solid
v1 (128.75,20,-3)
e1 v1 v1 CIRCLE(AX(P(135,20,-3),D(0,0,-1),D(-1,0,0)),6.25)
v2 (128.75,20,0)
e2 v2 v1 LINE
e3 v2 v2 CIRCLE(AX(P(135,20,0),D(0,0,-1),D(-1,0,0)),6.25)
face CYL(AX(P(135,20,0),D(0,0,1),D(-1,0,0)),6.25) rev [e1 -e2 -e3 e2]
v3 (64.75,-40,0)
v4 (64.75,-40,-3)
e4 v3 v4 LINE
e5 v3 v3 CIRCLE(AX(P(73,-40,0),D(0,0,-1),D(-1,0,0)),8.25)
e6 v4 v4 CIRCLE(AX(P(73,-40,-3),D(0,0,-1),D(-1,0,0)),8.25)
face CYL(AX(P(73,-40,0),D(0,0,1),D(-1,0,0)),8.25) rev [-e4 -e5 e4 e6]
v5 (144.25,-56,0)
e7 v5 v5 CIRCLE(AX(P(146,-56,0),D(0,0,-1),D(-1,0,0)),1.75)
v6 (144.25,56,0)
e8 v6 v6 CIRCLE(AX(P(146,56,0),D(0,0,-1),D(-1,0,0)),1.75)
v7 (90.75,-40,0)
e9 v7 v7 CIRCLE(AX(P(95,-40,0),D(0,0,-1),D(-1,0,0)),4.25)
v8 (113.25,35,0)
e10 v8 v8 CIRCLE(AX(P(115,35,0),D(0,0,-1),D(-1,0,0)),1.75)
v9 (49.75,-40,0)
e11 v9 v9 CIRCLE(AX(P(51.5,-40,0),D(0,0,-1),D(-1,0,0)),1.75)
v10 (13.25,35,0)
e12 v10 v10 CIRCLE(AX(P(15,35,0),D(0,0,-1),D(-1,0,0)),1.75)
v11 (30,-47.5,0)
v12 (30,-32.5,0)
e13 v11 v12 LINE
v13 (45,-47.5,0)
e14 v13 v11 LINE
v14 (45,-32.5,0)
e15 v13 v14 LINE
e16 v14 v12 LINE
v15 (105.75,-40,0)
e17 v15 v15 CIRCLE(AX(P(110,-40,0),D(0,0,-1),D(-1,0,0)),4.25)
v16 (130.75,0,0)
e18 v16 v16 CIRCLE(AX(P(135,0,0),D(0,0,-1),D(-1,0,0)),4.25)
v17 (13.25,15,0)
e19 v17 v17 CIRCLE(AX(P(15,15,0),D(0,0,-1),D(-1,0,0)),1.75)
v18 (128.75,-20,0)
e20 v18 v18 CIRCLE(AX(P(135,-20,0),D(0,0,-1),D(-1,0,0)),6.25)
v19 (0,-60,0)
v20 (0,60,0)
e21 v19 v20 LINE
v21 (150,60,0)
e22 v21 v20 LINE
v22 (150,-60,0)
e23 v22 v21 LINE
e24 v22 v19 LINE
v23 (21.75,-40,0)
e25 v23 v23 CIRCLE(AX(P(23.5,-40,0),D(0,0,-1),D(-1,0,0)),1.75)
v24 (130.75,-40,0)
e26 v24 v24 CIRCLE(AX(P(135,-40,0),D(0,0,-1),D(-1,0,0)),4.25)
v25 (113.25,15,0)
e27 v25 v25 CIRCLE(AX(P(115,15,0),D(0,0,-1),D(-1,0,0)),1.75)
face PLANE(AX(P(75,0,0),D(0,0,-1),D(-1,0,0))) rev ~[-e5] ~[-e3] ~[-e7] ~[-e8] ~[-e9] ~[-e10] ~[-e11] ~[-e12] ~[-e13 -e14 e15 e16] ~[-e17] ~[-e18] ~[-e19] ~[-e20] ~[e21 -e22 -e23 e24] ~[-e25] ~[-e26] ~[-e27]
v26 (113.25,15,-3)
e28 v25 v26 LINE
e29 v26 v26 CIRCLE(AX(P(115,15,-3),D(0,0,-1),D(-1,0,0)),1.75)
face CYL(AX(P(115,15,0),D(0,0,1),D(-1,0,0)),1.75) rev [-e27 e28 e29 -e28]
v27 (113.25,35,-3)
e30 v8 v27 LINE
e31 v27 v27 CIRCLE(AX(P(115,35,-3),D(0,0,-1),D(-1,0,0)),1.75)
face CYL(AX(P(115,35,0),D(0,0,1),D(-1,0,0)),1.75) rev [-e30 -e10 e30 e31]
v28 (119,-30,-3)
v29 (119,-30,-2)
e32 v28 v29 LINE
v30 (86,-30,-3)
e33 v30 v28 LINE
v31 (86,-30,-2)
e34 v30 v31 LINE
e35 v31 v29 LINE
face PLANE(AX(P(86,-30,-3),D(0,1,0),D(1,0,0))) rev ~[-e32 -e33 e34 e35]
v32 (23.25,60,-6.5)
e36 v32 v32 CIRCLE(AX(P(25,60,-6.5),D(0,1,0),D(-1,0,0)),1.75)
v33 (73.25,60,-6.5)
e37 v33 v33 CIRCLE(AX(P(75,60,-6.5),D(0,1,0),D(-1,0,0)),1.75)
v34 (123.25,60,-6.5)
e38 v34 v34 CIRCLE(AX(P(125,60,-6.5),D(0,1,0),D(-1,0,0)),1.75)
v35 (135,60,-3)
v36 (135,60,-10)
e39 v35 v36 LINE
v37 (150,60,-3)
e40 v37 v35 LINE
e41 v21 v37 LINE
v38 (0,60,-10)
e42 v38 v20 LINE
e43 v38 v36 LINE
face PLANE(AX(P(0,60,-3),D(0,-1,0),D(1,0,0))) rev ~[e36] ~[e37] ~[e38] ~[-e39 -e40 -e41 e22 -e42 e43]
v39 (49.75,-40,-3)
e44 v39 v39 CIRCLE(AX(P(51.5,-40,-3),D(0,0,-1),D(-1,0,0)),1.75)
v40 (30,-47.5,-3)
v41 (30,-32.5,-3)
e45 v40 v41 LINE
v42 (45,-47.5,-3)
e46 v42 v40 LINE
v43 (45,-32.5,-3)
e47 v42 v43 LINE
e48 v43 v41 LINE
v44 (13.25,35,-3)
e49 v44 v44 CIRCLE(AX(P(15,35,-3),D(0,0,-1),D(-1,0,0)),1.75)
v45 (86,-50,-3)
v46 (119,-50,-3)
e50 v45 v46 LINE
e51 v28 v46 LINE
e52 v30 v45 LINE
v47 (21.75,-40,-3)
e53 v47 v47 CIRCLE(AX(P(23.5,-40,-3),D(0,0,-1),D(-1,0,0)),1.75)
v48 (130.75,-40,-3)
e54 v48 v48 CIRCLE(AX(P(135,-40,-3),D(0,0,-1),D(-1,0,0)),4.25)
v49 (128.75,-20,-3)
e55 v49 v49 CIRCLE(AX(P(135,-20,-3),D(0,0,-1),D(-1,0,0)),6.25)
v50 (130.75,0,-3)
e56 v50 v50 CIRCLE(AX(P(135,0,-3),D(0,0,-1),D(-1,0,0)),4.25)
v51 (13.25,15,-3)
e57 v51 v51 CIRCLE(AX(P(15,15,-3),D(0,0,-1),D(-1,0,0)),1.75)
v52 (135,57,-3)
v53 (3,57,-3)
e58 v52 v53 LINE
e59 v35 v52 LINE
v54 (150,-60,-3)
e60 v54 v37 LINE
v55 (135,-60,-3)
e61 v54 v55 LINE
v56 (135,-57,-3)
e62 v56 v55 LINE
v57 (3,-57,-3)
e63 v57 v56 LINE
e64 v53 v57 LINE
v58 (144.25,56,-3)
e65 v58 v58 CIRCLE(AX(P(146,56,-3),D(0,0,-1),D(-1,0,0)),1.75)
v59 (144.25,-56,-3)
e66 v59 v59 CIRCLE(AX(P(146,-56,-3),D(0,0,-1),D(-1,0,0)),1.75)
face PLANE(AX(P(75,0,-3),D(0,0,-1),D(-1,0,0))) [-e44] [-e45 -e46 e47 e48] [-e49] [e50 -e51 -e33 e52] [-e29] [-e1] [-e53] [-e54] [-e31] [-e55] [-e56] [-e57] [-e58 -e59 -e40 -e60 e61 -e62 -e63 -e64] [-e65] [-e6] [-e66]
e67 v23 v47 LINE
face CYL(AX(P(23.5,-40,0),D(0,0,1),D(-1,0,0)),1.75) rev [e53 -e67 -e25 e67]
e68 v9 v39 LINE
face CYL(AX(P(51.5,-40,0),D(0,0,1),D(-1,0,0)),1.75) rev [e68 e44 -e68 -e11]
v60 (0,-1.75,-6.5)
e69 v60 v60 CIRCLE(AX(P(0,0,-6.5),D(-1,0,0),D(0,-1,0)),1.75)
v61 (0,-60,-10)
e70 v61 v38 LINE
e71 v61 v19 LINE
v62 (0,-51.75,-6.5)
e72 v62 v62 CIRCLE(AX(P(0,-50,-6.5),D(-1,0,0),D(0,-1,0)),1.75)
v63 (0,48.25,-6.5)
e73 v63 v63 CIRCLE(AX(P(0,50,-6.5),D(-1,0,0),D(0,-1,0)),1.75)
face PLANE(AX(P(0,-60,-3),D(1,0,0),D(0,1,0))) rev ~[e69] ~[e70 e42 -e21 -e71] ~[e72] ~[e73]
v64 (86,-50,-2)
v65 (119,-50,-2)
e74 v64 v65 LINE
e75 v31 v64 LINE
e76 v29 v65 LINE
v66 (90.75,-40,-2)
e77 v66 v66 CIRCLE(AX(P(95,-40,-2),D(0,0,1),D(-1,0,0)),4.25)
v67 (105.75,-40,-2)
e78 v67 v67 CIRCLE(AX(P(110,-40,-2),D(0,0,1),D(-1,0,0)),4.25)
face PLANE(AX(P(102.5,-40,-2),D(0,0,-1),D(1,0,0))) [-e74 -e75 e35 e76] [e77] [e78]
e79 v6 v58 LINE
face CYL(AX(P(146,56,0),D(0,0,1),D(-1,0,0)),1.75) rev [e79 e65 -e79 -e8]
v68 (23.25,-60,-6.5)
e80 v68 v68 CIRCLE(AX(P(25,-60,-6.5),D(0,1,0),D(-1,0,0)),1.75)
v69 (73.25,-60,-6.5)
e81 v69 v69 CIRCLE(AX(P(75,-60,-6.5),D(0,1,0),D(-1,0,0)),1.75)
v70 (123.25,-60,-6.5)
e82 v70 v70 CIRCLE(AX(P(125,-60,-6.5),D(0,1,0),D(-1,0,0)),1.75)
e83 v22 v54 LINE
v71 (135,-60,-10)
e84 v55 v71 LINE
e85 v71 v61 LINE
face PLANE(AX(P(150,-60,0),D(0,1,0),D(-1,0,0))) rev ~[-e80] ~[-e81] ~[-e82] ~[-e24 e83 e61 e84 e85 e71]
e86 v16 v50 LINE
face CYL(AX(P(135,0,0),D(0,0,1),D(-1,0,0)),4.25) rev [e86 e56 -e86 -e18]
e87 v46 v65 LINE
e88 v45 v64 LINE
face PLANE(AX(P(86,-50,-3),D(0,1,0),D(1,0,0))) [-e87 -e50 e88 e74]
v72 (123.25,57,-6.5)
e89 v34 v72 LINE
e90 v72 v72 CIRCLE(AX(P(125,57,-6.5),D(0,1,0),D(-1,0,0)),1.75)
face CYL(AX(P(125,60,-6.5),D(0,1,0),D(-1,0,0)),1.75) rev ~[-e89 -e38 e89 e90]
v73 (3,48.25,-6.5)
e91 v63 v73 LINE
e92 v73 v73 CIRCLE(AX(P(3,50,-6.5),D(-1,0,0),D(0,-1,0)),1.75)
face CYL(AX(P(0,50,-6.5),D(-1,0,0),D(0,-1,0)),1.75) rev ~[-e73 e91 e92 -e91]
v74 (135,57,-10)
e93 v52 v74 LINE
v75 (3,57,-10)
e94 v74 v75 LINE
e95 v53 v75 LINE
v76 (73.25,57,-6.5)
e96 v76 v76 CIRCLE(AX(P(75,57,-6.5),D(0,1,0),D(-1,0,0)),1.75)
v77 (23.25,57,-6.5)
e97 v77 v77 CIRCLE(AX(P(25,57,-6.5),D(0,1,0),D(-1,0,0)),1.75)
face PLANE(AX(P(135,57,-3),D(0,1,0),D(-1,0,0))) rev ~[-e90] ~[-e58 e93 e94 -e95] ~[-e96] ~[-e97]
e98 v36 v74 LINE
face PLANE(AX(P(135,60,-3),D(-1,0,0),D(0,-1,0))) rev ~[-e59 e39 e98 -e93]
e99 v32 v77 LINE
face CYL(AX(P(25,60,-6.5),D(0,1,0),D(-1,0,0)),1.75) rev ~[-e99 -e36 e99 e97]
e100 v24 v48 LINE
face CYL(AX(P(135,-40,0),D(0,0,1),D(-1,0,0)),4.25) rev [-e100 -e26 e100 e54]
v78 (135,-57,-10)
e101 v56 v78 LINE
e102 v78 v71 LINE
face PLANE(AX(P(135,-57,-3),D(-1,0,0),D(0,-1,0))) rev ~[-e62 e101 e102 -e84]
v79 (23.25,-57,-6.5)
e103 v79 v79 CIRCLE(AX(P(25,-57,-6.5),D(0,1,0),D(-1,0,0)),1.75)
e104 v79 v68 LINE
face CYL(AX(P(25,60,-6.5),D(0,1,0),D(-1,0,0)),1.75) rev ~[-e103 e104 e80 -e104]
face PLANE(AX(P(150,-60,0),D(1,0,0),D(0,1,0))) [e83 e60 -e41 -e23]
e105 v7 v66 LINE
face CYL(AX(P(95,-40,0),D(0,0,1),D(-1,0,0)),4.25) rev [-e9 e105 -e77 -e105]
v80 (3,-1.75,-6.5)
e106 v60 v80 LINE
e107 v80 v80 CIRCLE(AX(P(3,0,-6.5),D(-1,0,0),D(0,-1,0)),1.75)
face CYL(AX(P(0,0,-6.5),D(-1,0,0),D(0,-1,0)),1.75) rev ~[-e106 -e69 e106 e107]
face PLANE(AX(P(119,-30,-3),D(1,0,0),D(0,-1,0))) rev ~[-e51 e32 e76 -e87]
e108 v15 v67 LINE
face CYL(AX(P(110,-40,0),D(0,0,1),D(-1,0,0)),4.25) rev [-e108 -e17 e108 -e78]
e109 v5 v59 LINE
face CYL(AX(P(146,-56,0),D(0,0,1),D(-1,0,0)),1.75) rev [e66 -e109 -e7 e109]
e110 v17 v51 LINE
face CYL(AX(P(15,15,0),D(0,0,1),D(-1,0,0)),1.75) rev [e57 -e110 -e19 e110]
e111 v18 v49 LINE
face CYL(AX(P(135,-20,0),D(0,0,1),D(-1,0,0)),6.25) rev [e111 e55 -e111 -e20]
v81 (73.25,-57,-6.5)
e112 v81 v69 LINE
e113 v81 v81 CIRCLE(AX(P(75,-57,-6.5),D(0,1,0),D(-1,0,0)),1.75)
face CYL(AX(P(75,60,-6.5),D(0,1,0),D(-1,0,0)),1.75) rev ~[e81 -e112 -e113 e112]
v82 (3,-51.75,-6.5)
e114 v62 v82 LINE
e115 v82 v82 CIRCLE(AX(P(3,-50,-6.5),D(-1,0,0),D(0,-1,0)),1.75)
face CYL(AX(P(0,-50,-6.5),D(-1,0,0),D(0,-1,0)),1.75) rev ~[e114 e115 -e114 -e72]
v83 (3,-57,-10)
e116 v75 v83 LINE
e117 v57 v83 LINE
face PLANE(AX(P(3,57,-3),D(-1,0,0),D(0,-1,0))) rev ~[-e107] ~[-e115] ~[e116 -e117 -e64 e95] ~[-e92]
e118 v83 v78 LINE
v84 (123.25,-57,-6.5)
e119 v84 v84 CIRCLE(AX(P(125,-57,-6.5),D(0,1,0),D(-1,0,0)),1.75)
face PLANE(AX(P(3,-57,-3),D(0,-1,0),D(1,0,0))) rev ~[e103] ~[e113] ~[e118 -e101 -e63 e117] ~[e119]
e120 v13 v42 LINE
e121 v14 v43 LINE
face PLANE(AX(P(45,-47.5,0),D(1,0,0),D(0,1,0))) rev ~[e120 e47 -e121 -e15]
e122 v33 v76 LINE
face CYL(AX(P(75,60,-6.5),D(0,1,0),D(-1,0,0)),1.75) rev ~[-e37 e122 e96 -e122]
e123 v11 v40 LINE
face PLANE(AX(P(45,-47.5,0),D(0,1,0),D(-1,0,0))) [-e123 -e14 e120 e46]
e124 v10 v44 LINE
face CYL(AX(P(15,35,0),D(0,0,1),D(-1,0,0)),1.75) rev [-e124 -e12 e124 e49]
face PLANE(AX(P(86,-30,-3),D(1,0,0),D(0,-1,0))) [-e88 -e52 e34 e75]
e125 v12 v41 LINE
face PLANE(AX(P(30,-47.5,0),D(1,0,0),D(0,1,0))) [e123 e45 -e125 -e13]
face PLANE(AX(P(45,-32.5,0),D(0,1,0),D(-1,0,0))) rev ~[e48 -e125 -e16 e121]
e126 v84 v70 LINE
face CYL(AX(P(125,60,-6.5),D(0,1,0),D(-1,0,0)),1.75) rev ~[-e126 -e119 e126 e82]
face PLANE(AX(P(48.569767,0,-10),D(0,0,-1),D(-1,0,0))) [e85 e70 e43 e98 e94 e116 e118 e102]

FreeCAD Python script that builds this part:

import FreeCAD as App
import Part
import Sketcher

V = App.Vector
Q = App.Units.Quantity


def add_polygon(sketch, points):
    """Adds a closed chain of lines whose ends are joined by coincident constraints."""
    first, n = sketch.GeometryCount, len(points)
    for a, b in zip(points, points[1:] + points[:1]):
        sketch.addGeometry(Part.LineSegment(App.Vector(*a, 0), App.Vector(*b, 0)), False)
    for i in range(n):
        sketch.addConstraint(Sketcher.Constraint("Coincident", first + i, 2, first + (i + 1) % n, 1))

doc = App.newDocument("Part")
body = doc.addObject("PartDesign::Body", "Body")

# Sketch on XY plane
sketch1 = body.newObject("Sketcher::SketchObject", "Sketch")
sketch1.AttachmentSupport = (doc.getObject("XY_Plane"), [""])
sketch1.MapMode = "FlatFace"
add_polygon(sketch1, [(150, 60), (150, -60), (0, -60), (0, 60)])  # lines 0-3
sketch1.addGeometry(Part.Circle(V(146, -56, 0), V(0, 0, 1), 1.75), False)  # 4
sketch1.addGeometry(Part.Circle(V(135, -40, 0), V(0, 0, 1), 4.25), False)  # 5
sketch1.addGeometry(Part.Circle(V(110, -40, 0), V(0, 0, 1), 4.25), False)  # 6
sketch1.addGeometry(Part.Circle(V(95, -40, 0), V(0, 0, 1), 4.25), False)  # 7
sketch1.addGeometry(Part.Circle(V(135, -20, 0), V(0, 0, 1), 6.25), False)  # 8
sketch1.addGeometry(Part.Circle(V(73, -40, 0), V(0, 0, 1), 8.25), False)  # 9
sketch1.addGeometry(Part.Circle(V(51.5, -40, 0), V(0, 0, 1), 1.75), False)  # 10
add_polygon(sketch1, [(30, -47.5), (45, -47.5), (45, -32.5), (30, -32.5)])  # lines 11-14
sketch1.addGeometry(Part.Circle(V(23.5, -40, 0), V(0, 0, 1), 1.75), False)  # 15
sketch1.addGeometry(Part.Circle(V(135, 0, 0), V(0, 0, 1), 4.25), False)  # 16
sketch1.addGeometry(Part.Circle(V(135, 20, 0), V(0, 0, 1), 6.25), False)  # 17
sketch1.addGeometry(Part.Circle(V(115, 15, 0), V(0, 0, 1), 1.75), False)  # 18
sketch1.addGeometry(Part.Circle(V(115, 35, 0), V(0, 0, 1), 1.75), False)  # 19
sketch1.addGeometry(Part.Circle(V(146, 56, 0), V(0, 0, 1), 1.75), False)  # 20
sketch1.addGeometry(Part.Circle(V(15, 15, 0), V(0, 0, 1), 1.75), False)  # 21
sketch1.addGeometry(Part.Circle(V(15, 35, 0), V(0, 0, 1), 1.75), False)  # 22
sketch1.addConstraint([
    Sketcher.Constraint("Vertical", 0),
    Sketcher.Constraint("Horizontal", 1),
    Sketcher.Constraint("Vertical", 2),
    Sketcher.Constraint("Horizontal", 3),
    Sketcher.Constraint("Horizontal", 11),
    Sketcher.Constraint("Vertical", 12),
    Sketcher.Constraint("Horizontal", 13),
    Sketcher.Constraint("Vertical", 14),
    Sketcher.Constraint("Equal", 5, 6),
    Sketcher.Constraint("Equal", 6, 7),
    Sketcher.Constraint("Equal", 4, 10),
    Sketcher.Constraint("Equal", 10, 15),
    Sketcher.Constraint("Equal", 7, 16),
    Sketcher.Constraint("Equal", 8, 17),
    Sketcher.Constraint("Equal", 15, 18),
    Sketcher.Constraint("Equal", 18, 19),
    Sketcher.Constraint("Equal", 19, 20),
    Sketcher.Constraint("Equal", 20, 21),
    Sketcher.Constraint("Equal", 21, 22),
    Sketcher.Constraint("Symmetric", 1, 2, 2, 2, -1, 1),
    Sketcher.Constraint("Symmetric", 8, 3, 17, 3, -1),
    Sketcher.Constraint("Symmetric", 4, 3, 20, 3, -1),
    Sketcher.Constraint("PointOnObject", 16, 3, -1),
    Sketcher.Constraint("Horizontal", 5, 3, 6, 3),
    Sketcher.Constraint("Horizontal", 6, 3, 7, 3),
    Sketcher.Constraint("Horizontal", 7, 3, 9, 3),
    Sketcher.Constraint("Horizontal", 9, 3, 10, 3),
    Sketcher.Constraint("Horizontal", 10, 3, 15, 3),
    Sketcher.Constraint("Horizontal", 18, 3, 21, 3),
    Sketcher.Constraint("Horizontal", 19, 3, 22, 3),
    Sketcher.Constraint("Vertical", 5, 3, 8, 3),
    Sketcher.Constraint("Vertical", 8, 3, 16, 3),
    Sketcher.Constraint("Vertical", 18, 3, 19, 3),
    Sketcher.Constraint("Vertical", 21, 3, 22, 3),
    Sketcher.Constraint("Equal", 13, 12),
    Sketcher.Constraint("Diameter", 4, Q("3.5 mm")),
    Sketcher.Constraint("Diameter", 5, Q("8.5 mm")),
    Sketcher.Constraint("Diameter", 8, Q("12.5 mm")),
    Sketcher.Constraint("Diameter", 9, Q("16.5 mm")),
    Sketcher.Constraint("DistanceX", 1, 2, 1, 1, Q("150 mm")),
    Sketcher.Constraint("DistanceX", 11, 1, 11, 2, Q("15 mm")),
    Sketcher.Constraint("DistanceY", 0, 2, 0, 1, Q("120 mm")),
    Sketcher.Constraint("DistanceX", -1, 1, 4, 3, Q("146 mm")),
    Sketcher.Constraint("DistanceY", 4, 3, -1, 1, Q("56 mm")),
    Sketcher.Constraint("DistanceX", -1, 1, 5, 3, Q("135 mm")),
    Sketcher.Constraint("DistanceY", 5, 3, -1, 1, Q("40 mm")),
    Sketcher.Constraint("DistanceX", -1, 1, 6, 3, Q("110 mm")),
    Sketcher.Constraint("DistanceX", -1, 1, 7, 3, Q("95 mm")),
    Sketcher.Constraint("DistanceY", 8, 3, -1, 1, Q("20 mm")),
    Sketcher.Constraint("DistanceX", -1, 1, 9, 3, Q("73 mm")),
    Sketcher.Constraint("DistanceX", -1, 1, 18, 3, Q("115 mm")),
    Sketcher.Constraint("DistanceY", -1, 1, 18, 3, Q("15 mm")),
    Sketcher.Constraint("DistanceY", -1, 1, 19, 3, Q("35 mm")),
    Sketcher.Constraint("DistanceX", -1, 1, 21, 3, Q("15 mm")),
    Sketcher.Constraint("DistanceX", -1, 1, 11, 2, Q("45 mm")),
    Sketcher.Constraint("DistanceX", 15, 3, 10, 3, Q("28 mm")),
    Sketcher.Constraint("DistanceX", -1, 1, 10, 3, Q("51.5 mm")),
    Sketcher.Constraint("DistanceY", 11, 2, -1, 1, Q("47.5 mm")),
])
pad1 = body.newObject("PartDesign::Pad", "Pad")
pad1.Profile = sketch1
pad1.Length = 3
pad1.Reversed = True

# Sketch on XY plane
sketch2 = body.newObject("Sketcher::SketchObject", "Sketch001")
sketch2.AttachmentSupport = (doc.getObject("XY_Plane"), [""])
sketch2.MapMode = "FlatFace"
sketch2.AttachmentOffset = App.Placement(V(0, 0, -3), App.Rotation())
add_polygon(sketch2, [(135, 57), (135, 60), (0, 60), (0, -60), (135, -60), (135, -57), (3, -57), (3, 57)])  # lines 0-7
sketch2.addConstraint([
    Sketcher.Constraint("Vertical", 0),
    Sketcher.Constraint("Horizontal", 1),
    Sketcher.Constraint("Vertical", 2),
    Sketcher.Constraint("Horizontal", 3),
    Sketcher.Constraint("Vertical", 4),
    Sketcher.Constraint("Horizontal", 5),
    Sketcher.Constraint("Vertical", 6),
    Sketcher.Constraint("Horizontal", 7),
    Sketcher.Constraint("Symmetric", 1, 2, 2, 2, -1, 1),
    Sketcher.Constraint("Symmetric", 4, 2, 7, 2, -1),
    Sketcher.Constraint("DistanceX", 1, 2, 1, 1, Q("135 mm")),
    Sketcher.Constraint("DistanceX", 5, 2, 5, 1, Q("132 mm")),
    Sketcher.Constraint("DistanceY", 0, 1, 0, 2, Q("3 mm")),
    Sketcher.Constraint("DistanceY", 2, 2, 2, 1, Q("120 mm")),
])
pad2 = body.newObject("PartDesign::Pad", "Pad001")
pad2.Profile = sketch2
pad2.Length = 7
pad2.Reversed = True

# Sketch on XZ plane
sketch3 = body.newObject("Sketcher::SketchObject", "Sketch002")
sketch3.AttachmentSupport = (doc.getObject("XZ_Plane"), [""])
sketch3.MapMode = "FlatFace"
sketch3.AttachmentOffset = App.Placement(V(0, 0, -60), App.Rotation())
sketch3.addGeometry([
    Part.Circle(V(25, -6.5, 0), V(0, 0, 1), 1.75),
    Part.Circle(V(125, -6.5, 0), V(0, 0, 1), 1.75),
    Part.Circle(V(75, -6.5, 0), V(0, 0, 1), 1.75),
], False)
sketch3.addConstraint([
    Sketcher.Constraint("Equal", 0, 1),
    Sketcher.Constraint("Equal", 1, 2),
    Sketcher.Constraint("Horizontal", 0, 3, 1, 3),
    Sketcher.Constraint("Horizontal", 1, 3, 2, 3),
    Sketcher.Constraint("Diameter", 0, Q("3.5 mm")),
    Sketcher.Constraint("DistanceX", -1, 1, 0, 3, Q("25 mm")),
    Sketcher.Constraint("DistanceX", -1, 1, 1, 3, Q("125 mm")),
    Sketcher.Constraint("DistanceX", -1, 1, 2, 3, Q("75 mm")),
    Sketcher.Constraint("DistanceY", 0, 3, -1, 1, Q("6.5 mm")),
])
pocket1 = body.newObject("PartDesign::Pocket", "Pocket")
pocket1.Profile = sketch3
pocket1.Length = 225.01
pocket1.Reversed = True

# Sketch on YZ plane
sketch4 = body.newObject("Sketcher::SketchObject", "Sketch003")
sketch4.AttachmentSupport = (doc.getObject("YZ_Plane"), [""])
sketch4.MapMode = "FlatFace"
sketch4.addGeometry([
    Part.Circle(V(-50, -6.5, 0), V(0, 0, 1), 1.75),
    Part.Circle(V(50, -6.5, 0), V(0, 0, 1), 1.75),
    Part.Circle(V(0, -6.5, 0), V(0, 0, 1), 1.75),
], False)
sketch4.addConstraint([
    Sketcher.Constraint("Equal", 0, 1),
    Sketcher.Constraint("Equal", 1, 2),
    Sketcher.Constraint("Symmetric", 0, 3, 1, 3, -2),
    Sketcher.Constraint("PointOnObject", 2, 3, -2),
    Sketcher.Constraint("Horizontal", 1, 3, 2, 3),
    Sketcher.Constraint("Diameter", 0, Q("3.5 mm")),
    Sketcher.Constraint("DistanceX", 0, 3, -1, 1, Q("50 mm")),
    Sketcher.Constraint("DistanceY", 0, 3, -1, 1, Q("6.5 mm")),
])
pocket2 = body.newObject("PartDesign::Pocket", "Pocket001")
pocket2.Profile = sketch4
pocket2.Length = 5.01
pocket2.Reversed = True

# Sketch on XY plane
sketch5 = body.newObject("Sketcher::SketchObject", "Sketch004")
sketch5.AttachmentSupport = (doc.getObject("XY_Plane"), [""])
sketch5.MapMode = "FlatFace"
sketch5.AttachmentOffset = App.Placement(V(0, 0, -3), App.Rotation())
add_polygon(sketch5, [(86, -50), (86, -30), (119, -30), (119, -50)])  # lines 0-3
sketch5.addConstraint([
    Sketcher.Constraint("Vertical", 0),
    Sketcher.Constraint("Horizontal", 1),
    Sketcher.Constraint("Vertical", 2),
    Sketcher.Constraint("Horizontal", 3),
    Sketcher.Constraint("DistanceX", 1, 1, 1, 2, Q("33 mm")),
    Sketcher.Constraint("DistanceY", 0, 1, 0, 2, Q("20 mm")),
    Sketcher.Constraint("DistanceX", -1, 1, 0, 2, Q("86 mm")),
    Sketcher.Constraint("DistanceY", 0, 2, -1, 1, Q("30 mm")),
])
pocket3 = body.newObject("PartDesign::Pocket", "Pocket002")
pocket3.Profile = sketch5
pocket3.Length = 1
pocket3.Reversed = True

doc.recompute()
